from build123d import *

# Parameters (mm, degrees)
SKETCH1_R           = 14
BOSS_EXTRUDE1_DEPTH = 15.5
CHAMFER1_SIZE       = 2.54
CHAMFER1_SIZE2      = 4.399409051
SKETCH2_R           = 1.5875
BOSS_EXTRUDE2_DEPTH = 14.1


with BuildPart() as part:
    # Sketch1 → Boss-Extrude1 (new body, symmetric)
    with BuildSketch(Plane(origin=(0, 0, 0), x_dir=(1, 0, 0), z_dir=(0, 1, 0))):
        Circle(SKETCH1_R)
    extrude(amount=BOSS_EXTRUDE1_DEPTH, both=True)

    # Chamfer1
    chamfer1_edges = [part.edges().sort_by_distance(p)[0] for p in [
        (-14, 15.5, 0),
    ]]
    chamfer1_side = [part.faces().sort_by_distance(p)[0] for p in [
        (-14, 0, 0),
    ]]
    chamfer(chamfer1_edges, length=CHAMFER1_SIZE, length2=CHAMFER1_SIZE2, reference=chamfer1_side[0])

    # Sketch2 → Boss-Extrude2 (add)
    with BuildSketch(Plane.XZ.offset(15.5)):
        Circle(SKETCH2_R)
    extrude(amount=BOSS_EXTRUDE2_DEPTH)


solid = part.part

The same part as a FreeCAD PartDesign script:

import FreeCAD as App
import Part
import Sketcher
Q = App.Units.Quantity


def edges_at(feature, points):
    """Names of the edges that pass closest to the given points."""
    edges = feature.Shape.Edges
    near = lambda p: min(range(len(edges)), key=lambda i: edges[i].distToShape(Part.Vertex(*p))[0])
    return sorted({f"Edge{near(p) + 1}" for p in points})

doc = App.newDocument("Part")
params = doc.addObject("Spreadsheet::Sheet", "Params")
for row, (alias, value) in enumerate([
    ("sketch1_diameter", "28 mm"),
    ("pad1_length", "31 mm"),
    ("chamfer_size", "2.54 mm"),
    ("chamfer_size2", "4.399409 mm"),
    ("pad2_length", "14.1 mm"),
], start=1):
    params.set(f"A{row}", alias)
    params.set(f"B{row}", "=" + value)
    params.setAlias(f"B{row}", alias)

body = doc.addObject("PartDesign::Body", "Body")

# Sketch on XZ plane
sketch1 = body.newObject("Sketcher::SketchObject", "Sketch")
sketch1.AttachmentSupport = (doc.getObject("XZ_Plane"), [""])
sketch1.MapMode = "FlatFace"
sketch1.addGeometry(Part.Circle(App.Vector(0, 0, 0), App.Vector(0, 0, 1), 14), False)
sketch1.addConstraint([
    Sketcher.Constraint("Coincident", 0, 3, -1, 1),
    Sketcher.Constraint("Diameter", 0, Q("28 mm")),
])
sketch1.setExpression("Constraints[1]", "Params.sketch1_diameter")
pad1 = body.newObject("PartDesign::Pad", "Pad")
pad1.Profile = sketch1
pad1.setExpression("Length", "Params.pad1_length")
pad1.Midplane = True
doc.recompute()

chamfer = body.newObject("PartDesign::Chamfer", "Chamfer")
chamfer.Base = (pad1, edges_at(pad1, [(-14, 15.5, 0)]))
chamfer.ChamferType = "Two distances"
chamfer.setExpression("Size", "Params.chamfer_size")
chamfer.setExpression("Size2", "Params.chamfer_size2")

# Sketch on XZ plane
sketch2 = body.newObject("Sketcher::SketchObject", "Sketch001")
sketch2.AttachmentSupport = (doc.getObject("XZ_Plane"), [""])
sketch2.MapMode = "FlatFace"
sketch2.AttachmentOffset = App.Placement(App.Vector(0, 0, 15.5), App.Rotation())
sketch2.addGeometry(Part.Circle(App.Vector(0, 0, 0), App.Vector(0, 0, 1), 1.6), False)
sketch2.addConstraint([
    Sketcher.Constraint("Coincident", 0, 3, -1, 1),
    Sketcher.Constraint("Diameter", 0, Q("3.175 mm")),
])
pad2 = body.newObject("PartDesign::Pad", "Pad001")
pad2.Profile = sketch2
pad2.setExpression("Length", "Params.pad2_length")

doc.recompute()
